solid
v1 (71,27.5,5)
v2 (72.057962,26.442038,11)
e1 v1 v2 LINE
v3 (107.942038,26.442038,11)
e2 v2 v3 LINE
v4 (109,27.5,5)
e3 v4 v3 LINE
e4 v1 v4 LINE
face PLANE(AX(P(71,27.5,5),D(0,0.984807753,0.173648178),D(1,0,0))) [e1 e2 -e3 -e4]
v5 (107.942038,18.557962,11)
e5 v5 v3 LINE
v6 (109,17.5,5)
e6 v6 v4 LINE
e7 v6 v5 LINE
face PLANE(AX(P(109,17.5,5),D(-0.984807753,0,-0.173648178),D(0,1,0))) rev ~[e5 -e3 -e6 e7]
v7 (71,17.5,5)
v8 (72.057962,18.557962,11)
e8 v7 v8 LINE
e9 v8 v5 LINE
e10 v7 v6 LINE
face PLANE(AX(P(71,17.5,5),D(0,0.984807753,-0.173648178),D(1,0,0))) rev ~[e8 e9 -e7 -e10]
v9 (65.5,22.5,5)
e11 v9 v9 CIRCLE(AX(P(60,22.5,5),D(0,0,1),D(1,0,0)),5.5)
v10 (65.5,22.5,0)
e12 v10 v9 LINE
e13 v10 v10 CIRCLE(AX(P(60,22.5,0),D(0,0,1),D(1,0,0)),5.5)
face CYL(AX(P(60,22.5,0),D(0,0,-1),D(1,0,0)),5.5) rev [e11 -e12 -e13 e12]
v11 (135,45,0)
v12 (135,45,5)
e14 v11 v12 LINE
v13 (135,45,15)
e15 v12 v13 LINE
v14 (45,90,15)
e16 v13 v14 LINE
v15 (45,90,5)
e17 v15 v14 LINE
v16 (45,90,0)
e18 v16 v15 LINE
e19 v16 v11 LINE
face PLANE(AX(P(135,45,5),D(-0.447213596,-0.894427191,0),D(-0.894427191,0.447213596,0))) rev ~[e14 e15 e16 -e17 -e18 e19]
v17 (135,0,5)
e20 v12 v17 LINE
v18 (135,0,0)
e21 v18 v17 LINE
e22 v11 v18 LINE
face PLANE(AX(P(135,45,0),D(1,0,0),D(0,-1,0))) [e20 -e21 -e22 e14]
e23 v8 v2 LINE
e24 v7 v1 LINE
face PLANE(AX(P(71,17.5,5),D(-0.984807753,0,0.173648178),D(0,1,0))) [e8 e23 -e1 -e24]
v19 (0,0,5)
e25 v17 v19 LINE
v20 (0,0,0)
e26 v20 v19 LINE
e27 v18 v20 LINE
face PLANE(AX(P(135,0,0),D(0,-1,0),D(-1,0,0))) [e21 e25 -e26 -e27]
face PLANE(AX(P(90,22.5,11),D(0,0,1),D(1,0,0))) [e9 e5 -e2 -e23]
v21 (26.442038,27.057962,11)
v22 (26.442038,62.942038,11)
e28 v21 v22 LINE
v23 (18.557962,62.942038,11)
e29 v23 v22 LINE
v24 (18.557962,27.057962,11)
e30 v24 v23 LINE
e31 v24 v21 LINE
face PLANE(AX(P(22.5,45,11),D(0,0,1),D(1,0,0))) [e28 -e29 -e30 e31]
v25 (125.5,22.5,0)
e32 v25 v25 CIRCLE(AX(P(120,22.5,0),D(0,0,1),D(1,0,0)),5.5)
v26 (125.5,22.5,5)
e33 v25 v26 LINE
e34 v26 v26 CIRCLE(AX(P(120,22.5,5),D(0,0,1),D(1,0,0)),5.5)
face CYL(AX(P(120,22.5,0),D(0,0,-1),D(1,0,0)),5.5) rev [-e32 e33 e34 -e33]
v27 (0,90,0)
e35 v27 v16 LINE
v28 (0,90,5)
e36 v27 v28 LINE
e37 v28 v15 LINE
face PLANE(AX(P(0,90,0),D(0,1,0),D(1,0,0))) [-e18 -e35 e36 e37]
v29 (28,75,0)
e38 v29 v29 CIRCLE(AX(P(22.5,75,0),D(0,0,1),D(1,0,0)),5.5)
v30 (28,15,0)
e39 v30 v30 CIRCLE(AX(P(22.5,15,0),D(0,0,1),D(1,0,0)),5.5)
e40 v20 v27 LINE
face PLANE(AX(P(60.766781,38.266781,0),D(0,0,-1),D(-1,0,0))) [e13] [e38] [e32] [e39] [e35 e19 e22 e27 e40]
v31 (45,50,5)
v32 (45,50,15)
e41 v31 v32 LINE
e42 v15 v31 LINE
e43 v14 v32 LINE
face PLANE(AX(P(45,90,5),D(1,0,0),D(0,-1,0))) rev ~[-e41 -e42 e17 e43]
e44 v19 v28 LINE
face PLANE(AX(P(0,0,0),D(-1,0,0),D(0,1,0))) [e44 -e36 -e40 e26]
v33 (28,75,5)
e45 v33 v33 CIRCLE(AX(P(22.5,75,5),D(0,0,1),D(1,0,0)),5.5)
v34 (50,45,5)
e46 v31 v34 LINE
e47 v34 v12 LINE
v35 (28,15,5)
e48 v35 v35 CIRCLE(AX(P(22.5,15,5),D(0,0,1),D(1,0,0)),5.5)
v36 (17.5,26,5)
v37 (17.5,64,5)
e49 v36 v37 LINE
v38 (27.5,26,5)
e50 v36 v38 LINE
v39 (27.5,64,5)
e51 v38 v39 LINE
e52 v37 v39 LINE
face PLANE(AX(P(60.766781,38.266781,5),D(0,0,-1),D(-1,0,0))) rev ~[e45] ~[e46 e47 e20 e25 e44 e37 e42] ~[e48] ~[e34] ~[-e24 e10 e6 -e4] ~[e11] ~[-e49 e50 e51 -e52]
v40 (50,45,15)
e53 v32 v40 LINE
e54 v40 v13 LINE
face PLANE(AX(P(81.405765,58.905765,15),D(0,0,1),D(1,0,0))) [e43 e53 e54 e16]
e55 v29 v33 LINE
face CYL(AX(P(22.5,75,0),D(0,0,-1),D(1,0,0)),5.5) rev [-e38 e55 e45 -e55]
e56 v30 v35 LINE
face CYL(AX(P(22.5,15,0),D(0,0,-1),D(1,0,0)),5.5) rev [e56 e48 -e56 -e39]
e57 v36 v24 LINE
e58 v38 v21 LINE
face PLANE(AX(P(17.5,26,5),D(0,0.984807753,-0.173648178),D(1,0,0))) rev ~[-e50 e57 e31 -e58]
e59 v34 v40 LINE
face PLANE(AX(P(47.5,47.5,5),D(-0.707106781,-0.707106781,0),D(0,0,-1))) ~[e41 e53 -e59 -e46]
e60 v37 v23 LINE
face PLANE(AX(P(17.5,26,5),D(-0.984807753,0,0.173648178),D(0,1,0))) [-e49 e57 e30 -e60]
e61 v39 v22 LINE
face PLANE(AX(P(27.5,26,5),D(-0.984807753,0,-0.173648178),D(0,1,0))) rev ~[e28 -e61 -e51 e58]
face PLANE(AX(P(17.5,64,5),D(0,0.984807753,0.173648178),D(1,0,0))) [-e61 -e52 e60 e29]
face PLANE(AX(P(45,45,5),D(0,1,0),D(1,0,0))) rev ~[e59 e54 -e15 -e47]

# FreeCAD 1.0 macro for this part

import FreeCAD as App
import Part
import Sketcher
from FreeCAD import Vector
Q = App.Units.Quantity


def edges_at(feature, points):
    """Names of the edges that pass closest to the given points."""
    edges = feature.Shape.Edges
    near = lambda p: min(range(len(edges)), key=lambda i: edges[i].distToShape(Part.Vertex(*p))[0])
    return sorted({f"Edge{near(p) + 1}" for p in points})


def faces_at(feature, points):
    """Names of the faces that lie closest to the given points."""
    faces = feature.Shape.Faces
    near = lambda p: min(range(len(faces)), key=lambda i: faces[i].distToShape(Part.Vertex(*p))[0])
    return sorted({f"Face{near(p) + 1}" for p in points})

doc = App.newDocument("Part")
body = doc.addObject("PartDesign::Body", "Body")

# Sketch on XY plane
sketch1 = doc.addObject("Sketcher::SketchObject", "Sketch")
body.addObject(sketch1)
sketch1.AttachmentSupport = (doc.XY_Plane, [""])
sketch1.MapMode = "FlatFace"
sketch1.addGeometry(Part.LineSegment(Vector(0, 90, 0), Vector(0, 0, 0)), False)
sketch1.addGeometry(Part.LineSegment(Vector(0, 0, 0), Vector(135, 0, 0)), False)
sketch1.addGeometry(Part.LineSegment(Vector(135, 0, 0), Vector(135, 45, 0)), False)
sketch1.addGeometry(Part.LineSegment(Vector(135, 45, 0), Vector(45, 90, 0)), False)
sketch1.addGeometry(Part.LineSegment(Vector(45, 90, 0), Vector(0, 90, 0)), False)
sketch1.addGeometry(Part.Circle(Vector(120, 22, 0), Vector(0, 0, 1), 6), False)
sketch1.addGeometry(Part.Circle(Vector(60, 22, 0), Vector(0, 0, 1), 6), False)
sketch1.addGeometry(Part.Circle(Vector(22, 15, 0), Vector(0, 0, 1), 6), False)
sketch1.addGeometry(Part.Circle(Vector(22, 75, 0), Vector(0, 0, 1), 6), False)
sketch1.addConstraint(Sketcher.Constraint("Coincident", 0, 2, 1, 1))
sketch1.addConstraint(Sketcher.Constraint("Coincident", 1, 2, 2, 1))
sketch1.addConstraint(Sketcher.Constraint("Coincident", 2, 2, 3, 1))
sketch1.addConstraint(Sketcher.Constraint("Coincident", 3, 2, 4, 1))
sketch1.addConstraint(Sketcher.Constraint("Coincident", 4, 2, 0, 1))
sketch1.addConstraint(Sketcher.Constraint("Vertical", 0))
sketch1.addConstraint(Sketcher.Constraint("Horizontal", 1))
sketch1.addConstraint(Sketcher.Constraint("Vertical", 2))
sketch1.addConstraint(Sketcher.Constraint("Horizontal", 4))
sketch1.addConstraint(Sketcher.Constraint("Coincident", 0, 2, -1, 1))
sketch1.addConstraint(Sketcher.Constraint("Equal", 5, 6))
sketch1.addConstraint(Sketcher.Constraint("Equal", 6, 7))
sketch1.addConstraint(Sketcher.Constraint("Equal", 7, 8))
sketch1.addConstraint(Sketcher.Constraint("Horizontal", 5, 3, 6, 3))
sketch1.addConstraint(Sketcher.Constraint("Vertical", 7, 3, 8, 3))
sketch1.addConstraint(Sketcher.Constraint("Equal", 4, 2))
sketch1.addConstraint(Sketcher.Constraint("Diameter", 5, Q("11 mm")))
sketch1.addConstraint(Sketcher.Constraint("DistanceX", 1, 1, 1, 2, Q("135 mm")))
sketch1.addConstraint(Sketcher.Constraint("DistanceX", 4, 2, 4, 1, Q("45 mm")))
sketch1.addConstraint(Sketcher.Constraint("DistanceY", 0, 2, 0, 1, Q("90 mm")))
sketch1.addConstraint(Sketcher.Constraint("DistanceX", -1, 1, 5, 3, Q("120 mm")))
sketch1.addConstraint(Sketcher.Constraint("DistanceX", -1, 1, 6, 3, Q("60 mm")))
sketch1.addConstraint(Sketcher.Constraint("DistanceY", -1, 1, 7, 3, Q("15 mm")))
sketch1.addConstraint(Sketcher.Constraint("DistanceY", -1, 1, 8, 3, Q("75 mm")))
sketch1.addConstraint(Sketcher.Constraint("DistanceY", -1, 1, 5, 3, Q("22.5 mm")))
sketch1.addConstraint(Sketcher.Constraint("DistanceX", -1, 1, 7, 3, Q("22.5 mm")))
pad1 = doc.addObject("PartDesign::Pad", "Pad")
body.addObject(pad1)
pad1.Profile = sketch1
pad1.Length = 5

# Sketch on XY plane
sketch2 = doc.addObject("Sketcher::SketchObject", "Sketch001")
body.addObject(sketch2)
sketch2.AttachmentSupport = (doc.XY_Plane, [""])
sketch2.MapMode = "FlatFace"
sketch2.AttachmentOffset = App.Placement(Vector(0, 0, 5), App.Rotation())
sketch2.addGeometry(Part.LineSegment(Vector(18, 64, 0), Vector(18, 26, 0)), False)
sketch2.addGeometry(Part.LineSegment(Vector(18, 26, 0), Vector(28, 26, 0)), False)
sketch2.addGeometry(Part.LineSegment(Vector(28, 26, 0), Vector(28, 64, 0)), False)
sketch2.addGeometry(Part.LineSegment(Vector(28, 64, 0), Vector(18, 64, 0)), False)
sketch2.addGeometry(Part.LineSegment(Vector(71, 28, 0), Vector(71, 18, 0)), False)
sketch2.addGeometry(Part.LineSegment(Vector(71, 18, 0), Vector(109, 18, 0)), False)
sketch2.addGeometry(Part.LineSegment(Vector(109, 18, 0), Vector(109, 28, 0)), False)
sketch2.addGeometry(Part.LineSegment(Vector(109, 28, 0), Vector(71, 28, 0)), False)
sketch2.addConstraint(Sketcher.Constraint("Coincident", 0, 2, 1, 1))
sketch2.addConstraint(Sketcher.Constraint("Coincident", 1, 2, 2, 1))
sketch2.addConstraint(Sketcher.Constraint("Coincident", 2, 2, 3, 1))
sketch2.addConstraint(Sketcher.Constraint("Coincident", 3, 2, 0, 1))
sketch2.addConstraint(Sketcher.Constraint("Coincident", 4, 2, 5, 1))
sketch2.addConstraint(Sketcher.Constraint("Coincident", 5, 2, 6, 1))
sketch2.addConstraint(Sketcher.Constraint("Coincident", 6, 2, 7, 1))
sketch2.addConstraint(Sketcher.Constraint("Coincident", 7, 2, 4, 1))
sketch2.addConstraint(Sketcher.Constraint("Vertical", 0))
sketch2.addConstraint(Sketcher.Constraint("Horizontal", 1))
sketch2.addConstraint(Sketcher.Constraint("Vertical", 2))
sketch2.addConstraint(Sketcher.Constraint("Horizontal", 3))
sketch2.addConstraint(Sketcher.Constraint("Vertical", 4))
sketch2.addConstraint(Sketcher.Constraint("Horizontal", 5))
sketch2.addConstraint(Sketcher.Constraint("Vertical", 6))
sketch2.addConstraint(Sketcher.Constraint("Horizontal", 7))
sketch2.addConstraint(Sketcher.Constraint("Equal", 7, 0))
sketch2.addConstraint(Sketcher.Constraint("Equal", 3, 4))
sketch2.addConstraint(Sketcher.Constraint("DistanceX", 1, 1, 1, 2, Q("10 mm")))
sketch2.addConstraint(Sketcher.Constraint("DistanceX", 5, 1, 5, 2, Q("38 mm")))
sketch2.addConstraint(Sketcher.Constraint("DistanceY", -1, 1, 0, 2, Q("26 mm")))
sketch2.addConstraint(Sketcher.Constraint("DistanceX", -1, 1, 4, 2, Q("71 mm")))
sketch2.addConstraint(Sketcher.Constraint("DistanceX", -1, 1, 0, 2, Q("17.5 mm")))
sketch2.addConstraint(Sketcher.Constraint("DistanceY", -1, 1, 4, 2, Q("17.5 mm")))
pad2 = doc.addObject("PartDesign::Pad", "Pad001")
body.addObject(pad2)
pad2.Profile = sketch2
pad2.Length = 6
doc.recompute()

datumplane = doc.addObject("PartDesign::Plane", "DatumPlane")
body.addObject(datumplane)
datumplane.AttachmentSupport = (doc.XY_Plane, [""])
datumplane.MapMode = "FlatFace"
datumplane.AttachmentOffset = App.Placement(Vector(0, 0, 5), App.Rotation())
draft = doc.addObject("PartDesign::Draft", "Draft")
body.addObject(draft)
draft.Base = (pad2, faces_at(pad2, [
    (90, 27.5, 8),
    (109, 22.5, 8),
    (71, 22.5, 8),
    (90, 17.5, 8),
    (22.5, 26, 8),
    (27.5, 45, 8),
    (22.5, 64, 8),
    (17.5, 45, 8),
]))
draft.NeutralPlane = (datumplane, [""])
draft.Angle = 10
draft.Reversed = False

# Sketch on XY plane
sketch3 = doc.addObject("Sketcher::SketchObject", "Sketch002")
body.addObject(sketch3)
sketch3.AttachmentSupport = (doc.XY_Plane, [""])
sketch3.MapMode = "FlatFace"
sketch3.AttachmentOffset = App.Placement(Vector(0, 0, 5), App.Rotation())
sketch3.addGeometry(Part.LineSegment(Vector(45, 90, 0), Vector(45, 45, 0)), False)
sketch3.addGeometry(Part.LineSegment(Vector(45, 45, 0), Vector(135, 45, 0)), False)
sketch3.addGeometry(Part.LineSegment(Vector(135, 45, 0), Vector(45, 90, 0)), False)
sketch3.addConstraint(Sketcher.Constraint("Coincident", 0, 2, 1, 1))
sketch3.addConstraint(Sketcher.Constraint("Coincident", 1, 2, 2, 1))
sketch3.addConstraint(Sketcher.Constraint("Coincident", 2, 2, 0, 1))
sketch3.addConstraint(Sketcher.Constraint("Vertical", 0))
sketch3.addConstraint(Sketcher.Constraint("Horizontal", 1))
sketch3.addConstraint(Sketcher.Constraint("DistanceX", 1, 1, 1, 2, Q("90 mm")))
sketch3.addConstraint(Sketcher.Constraint("DistanceY", 0, 2, 0, 1, Q("45 mm")))
sketch3.addConstraint(Sketcher.Constraint("DistanceX", -1, 1, 0, 2, Q("45 mm")))
sketch3.addConstraint(Sketcher.Constraint("DistanceY", -1, 1, 0, 2, Q("45 mm")))
pad3 = doc.addObject("PartDesign::Pad", "Pad002")
body.addObject(pad3)
pad3.Profile = sketch3
pad3.Length = 10
doc.recompute()

chamfer = doc.addObject("PartDesign::Chamfer", "Chamfer")
body.addObject(chamfer)
chamfer.Base = (pad3, edges_at(pad3, [(45, 45, 10)]))
chamfer.Size = 5

doc.recompute()
